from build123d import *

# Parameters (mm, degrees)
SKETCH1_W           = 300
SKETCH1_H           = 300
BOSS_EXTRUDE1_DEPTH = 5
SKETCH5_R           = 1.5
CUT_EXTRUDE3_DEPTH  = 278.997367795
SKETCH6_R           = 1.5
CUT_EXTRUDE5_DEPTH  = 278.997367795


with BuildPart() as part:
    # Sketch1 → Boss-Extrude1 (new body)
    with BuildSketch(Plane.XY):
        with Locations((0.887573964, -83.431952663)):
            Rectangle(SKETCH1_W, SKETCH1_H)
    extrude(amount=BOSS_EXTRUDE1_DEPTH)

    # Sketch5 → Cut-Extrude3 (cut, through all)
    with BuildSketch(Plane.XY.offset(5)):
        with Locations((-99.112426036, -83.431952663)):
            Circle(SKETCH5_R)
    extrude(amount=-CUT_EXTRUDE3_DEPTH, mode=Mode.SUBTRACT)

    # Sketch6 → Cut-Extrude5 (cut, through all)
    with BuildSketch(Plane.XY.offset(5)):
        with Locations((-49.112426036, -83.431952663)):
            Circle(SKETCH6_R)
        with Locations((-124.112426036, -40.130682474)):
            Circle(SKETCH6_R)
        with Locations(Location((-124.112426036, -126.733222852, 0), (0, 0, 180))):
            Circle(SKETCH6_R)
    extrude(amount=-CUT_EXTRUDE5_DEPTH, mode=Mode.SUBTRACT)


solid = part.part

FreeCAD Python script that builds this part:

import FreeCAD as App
import Part
import Sketcher

V = App.Vector
Q = App.Units.Quantity


def add_polygon(sketch, points):
    """Adds a closed chain of lines whose ends are joined by coincident constraints."""
    first, n = sketch.GeometryCount, len(points)
    for a, b in zip(points, points[1:] + points[:1]):
        sketch.addGeometry(Part.LineSegment(App.Vector(*a, 0), App.Vector(*b, 0)), False)
    for i in range(n):
        sketch.addConstraint(Sketcher.Constraint("Coincident", first + i, 2, first + (i + 1) % n, 1))

doc = App.newDocument("Part")
params = doc.addObject("Spreadsheet::Sheet", "Params")
for row, (alias, value) in enumerate([
    ("sketch1_width", "300 mm"),
    ("pad1_length", "5 mm"),
    ("sketch2_diameter", "3 mm"),
    ("sketch3_diameter", "3 mm"),
], start=1):
    params.set(f"A{row}", alias)
    params.set(f"B{row}", "=" + value)
    params.setAlias(f"B{row}", alias)

body = doc.addObject("PartDesign::Body", "Body")

# Sketch on XY plane
sketch1 = body.newObject("Sketcher::SketchObject", "Sketch")
sketch1.AttachmentSupport = (doc.getObject("XY_Plane"), [""])
sketch1.MapMode = "FlatFace"
add_polygon(sketch1, [(-149, 67), (-149, -233), (151, -233), (151, 67)])  # lines 0-3
sketch1.addConstraint([
    Sketcher.Constraint("Vertical", 0),
    Sketcher.Constraint("Horizontal", 1),
    Sketcher.Constraint("Vertical", 2),
    Sketcher.Constraint("Horizontal", 3),
    Sketcher.Constraint("Equal", 3, 0),
    Sketcher.Constraint("DistanceX", 1, 1, 1, 2, Q("300 mm")),
    Sketcher.Constraint("DistanceX", 0, 2, -1, 1, Q("149.112426 mm")),
    Sketcher.Constraint("DistanceY", 0, 2, -1, 1, Q("233.431953 mm")),
])
sketch1.setExpression("Constraints[9]", "Params.sketch1_width")
pad1 = body.newObject("PartDesign::Pad", "Pad")
pad1.Profile = sketch1
pad1.setExpression("Length", "Params.pad1_length")

# Sketch on XY plane
sketch2 = body.newObject("Sketcher::SketchObject", "Sketch001")
sketch2.AttachmentSupport = (doc.getObject("XY_Plane"), [""])
sketch2.MapMode = "FlatFace"
sketch2.AttachmentOffset = App.Placement(V(0, 0, 5), App.Rotation())
sketch2.addGeometry(Part.Circle(V(-99.1, -83.4, 0), V(0, 0, 1), 1.5), False)
sketch2.addConstraint([
    Sketcher.Constraint("Diameter", 0, Q("3 mm")),
    Sketcher.Constraint("DistanceX", 0, 3, -1, 1, Q("99.112426 mm")),
    Sketcher.Constraint("DistanceY", 0, 3, -1, 1, Q("83.431953 mm")),
])
sketch2.setExpression("Constraints[0]", "Params.sketch2_diameter")
pocket1 = body.newObject("PartDesign::Pocket", "Pocket")
pocket1.Profile = sketch2
pocket1.Type = "ThroughAll"

# Sketch on XY plane
sketch3 = body.newObject("Sketcher::SketchObject", "Sketch002")
sketch3.AttachmentSupport = (doc.getObject("XY_Plane"), [""])
sketch3.MapMode = "FlatFace"
sketch3.AttachmentOffset = App.Placement(V(0, 0, 5), App.Rotation())
sketch3.addGeometry([
    Part.Circle(V(-49.1, -83.4, 0), V(0, 0, 1), 1.5),
    Part.Circle(V(-124.1, -40.1, 0), V(0, 0, 1), 1.5),
    Part.Circle(V(-124.1, -126.7, 0), V(0, 0, 1), 1.5),
], False)
sketch3.addConstraint([
    Sketcher.Constraint("Equal", 0, 1),
    Sketcher.Constraint("Equal", 1, 2),
    Sketcher.Constraint("Vertical", 1, 3, 2, 3),
    Sketcher.Constraint("Diameter", 0, Q("3 mm")),
    Sketcher.Constraint("DistanceX", 1, 3, 0, 3, Q("75 mm")),
    Sketcher.Constraint("DistanceY", 0, 3, 1, 3, Q("43.30127 mm")),
    Sketcher.Constraint("DistanceY", 2, 3, 1, 3, Q("86.60254 mm")),
    Sketcher.Constraint("DistanceX", 0, 3, -1, 1, Q("49.112426 mm")),
    Sketcher.Constraint("DistanceY", 0, 3, -1, 1, Q("83.431953 mm")),
])
sketch3.setExpression("Constraints[3]", "Params.sketch3_diameter")
pocket2 = body.newObject("PartDesign::Pocket", "Pocket001")
pocket2.Profile = sketch3
pocket2.Type = "ThroughAll"

doc.recompute()
